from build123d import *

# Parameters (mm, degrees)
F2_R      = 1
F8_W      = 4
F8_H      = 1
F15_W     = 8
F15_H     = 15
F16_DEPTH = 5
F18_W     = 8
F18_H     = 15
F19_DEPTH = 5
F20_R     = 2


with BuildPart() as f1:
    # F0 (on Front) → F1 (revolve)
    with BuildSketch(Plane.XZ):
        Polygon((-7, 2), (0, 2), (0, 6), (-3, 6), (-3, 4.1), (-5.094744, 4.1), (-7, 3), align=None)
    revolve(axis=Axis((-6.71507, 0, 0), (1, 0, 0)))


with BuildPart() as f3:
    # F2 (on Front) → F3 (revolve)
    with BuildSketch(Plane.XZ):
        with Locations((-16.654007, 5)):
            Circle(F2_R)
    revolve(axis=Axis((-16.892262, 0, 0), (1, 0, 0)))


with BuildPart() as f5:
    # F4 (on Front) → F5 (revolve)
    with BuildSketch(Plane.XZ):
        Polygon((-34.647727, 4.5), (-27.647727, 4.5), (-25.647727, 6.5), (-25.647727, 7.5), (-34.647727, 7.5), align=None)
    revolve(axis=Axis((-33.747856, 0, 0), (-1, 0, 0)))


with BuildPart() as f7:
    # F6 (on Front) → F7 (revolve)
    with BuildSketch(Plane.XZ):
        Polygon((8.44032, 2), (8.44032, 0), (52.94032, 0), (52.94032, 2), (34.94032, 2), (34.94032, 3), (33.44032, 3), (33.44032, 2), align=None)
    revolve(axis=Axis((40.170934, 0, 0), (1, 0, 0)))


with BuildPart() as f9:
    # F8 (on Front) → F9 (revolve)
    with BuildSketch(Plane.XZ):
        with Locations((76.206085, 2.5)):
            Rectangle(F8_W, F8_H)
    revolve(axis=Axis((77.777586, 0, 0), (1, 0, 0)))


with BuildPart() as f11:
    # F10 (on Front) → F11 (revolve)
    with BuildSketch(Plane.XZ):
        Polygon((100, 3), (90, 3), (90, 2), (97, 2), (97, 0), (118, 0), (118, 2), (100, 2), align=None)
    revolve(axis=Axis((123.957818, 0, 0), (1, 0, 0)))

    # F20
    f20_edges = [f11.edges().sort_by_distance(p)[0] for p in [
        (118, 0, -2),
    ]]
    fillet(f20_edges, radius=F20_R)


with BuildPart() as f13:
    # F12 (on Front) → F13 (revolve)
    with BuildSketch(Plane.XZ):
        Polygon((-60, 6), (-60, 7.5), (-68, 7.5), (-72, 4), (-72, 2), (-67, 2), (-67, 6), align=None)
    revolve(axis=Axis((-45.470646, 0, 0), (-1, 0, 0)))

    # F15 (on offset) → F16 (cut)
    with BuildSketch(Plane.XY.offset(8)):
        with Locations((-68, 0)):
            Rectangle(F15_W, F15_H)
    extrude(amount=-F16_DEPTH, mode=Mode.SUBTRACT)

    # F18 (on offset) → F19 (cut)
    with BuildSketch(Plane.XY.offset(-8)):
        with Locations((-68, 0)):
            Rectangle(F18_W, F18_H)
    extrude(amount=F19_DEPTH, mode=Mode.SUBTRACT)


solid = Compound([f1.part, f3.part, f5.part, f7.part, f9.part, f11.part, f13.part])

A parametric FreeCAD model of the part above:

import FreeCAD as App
import Part
import Sketcher
Q = App.Units.Quantity


def edges_at(feature, points):
    """Names of the edges that pass closest to the given points."""
    edges = feature.Shape.Edges
    near = lambda p: min(range(len(edges)), key=lambda i: edges[i].distToShape(Part.Vertex(*p))[0])
    return sorted({f"Edge{near(p) + 1}" for p in points})

doc = App.newDocument("Part")
body = doc.addObject("PartDesign::Body", "Body")

# Sketch on XZ plane
sketch1 = doc.addObject("Sketcher::SketchObject", "Sketch")
body.addObject(sketch1)
sketch1.AttachmentSupport = (doc.XZ_Plane, [""])
sketch1.MapMode = "FlatFace"
sketch1.addGeometry(Part.LineSegment(App.Vector(-7, 2, 0), App.Vector(0, 2, 0)), False)
sketch1.addGeometry(Part.LineSegment(App.Vector(0, 2, 0), App.Vector(0, 6, 0)), False)
sketch1.addGeometry(Part.LineSegment(App.Vector(0, 6, 0), App.Vector(-3, 6, 0)), False)
sketch1.addGeometry(Part.LineSegment(App.Vector(-3, 6, 0), App.Vector(-3, 4.1, 0)), False)
sketch1.addGeometry(Part.LineSegment(App.Vector(-3, 4.1, 0), App.Vector(-5.1, 4.1, 0)), False)
sketch1.addGeometry(Part.LineSegment(App.Vector(-5.1, 4.1, 0), App.Vector(-7, 3, 0)), False)
sketch1.addGeometry(Part.LineSegment(App.Vector(-7, 3, 0), App.Vector(-7, 2, 0)), False)
sketch1.addConstraint(Sketcher.Constraint("Coincident", 0, 2, 1, 1))
sketch1.addConstraint(Sketcher.Constraint("Coincident", 1, 2, 2, 1))
sketch1.addConstraint(Sketcher.Constraint("Coincident", 2, 2, 3, 1))
sketch1.addConstraint(Sketcher.Constraint("Coincident", 3, 2, 4, 1))
sketch1.addConstraint(Sketcher.Constraint("Coincident", 4, 2, 5, 1))
sketch1.addConstraint(Sketcher.Constraint("Coincident", 5, 2, 6, 1))
sketch1.addConstraint(Sketcher.Constraint("Coincident", 6, 2, 0, 1))
sketch1.addConstraint(Sketcher.Constraint("Horizontal", 0))
sketch1.addConstraint(Sketcher.Constraint("Vertical", 1))
sketch1.addConstraint(Sketcher.Constraint("Horizontal", 2))
sketch1.addConstraint(Sketcher.Constraint("Vertical", 3))
sketch1.addConstraint(Sketcher.Constraint("Horizontal", 4))
sketch1.addConstraint(Sketcher.Constraint("Vertical", 6))
sketch1.addConstraint(Sketcher.Constraint("PointOnObject", 0, 2, -2))
sketch1.addConstraint(Sketcher.Constraint("DistanceX", 0, 1, 0, 2, Q("7 mm")))
sketch1.addConstraint(Sketcher.Constraint("DistanceX", 2, 2, 2, 1, Q("3 mm")))
sketch1.addConstraint(Sketcher.Constraint("DistanceY", 1, 1, 1, 2, Q("4 mm")))
sketch1.addConstraint(Sketcher.Constraint("DistanceY", 6, 2, 6, 1, Q("1 mm")))
sketch1.addConstraint(Sketcher.Constraint("Angle", 5, Q("-150.000001 deg")))
sketch1.addConstraint(Sketcher.Constraint("DistanceY", 3, 2, 3, 1, Q("1.9 mm")))
sketch1.addConstraint(Sketcher.Constraint("DistanceY", -1, 1, 0, 2, Q("2 mm")))
revolution = doc.addObject("PartDesign::Revolution", "Revolution")
body.addObject(revolution)
revolution.Profile = sketch1
revolution.ReferenceAxis = (sketch1, ["H_Axis"])
revolution.Angle = 360
body2 = doc.addObject("PartDesign::Body", "Body001")

# Sketch on XZ plane
sketch2 = doc.addObject("Sketcher::SketchObject", "Sketch001")
body2.addObject(sketch2)
sketch2.AttachmentSupport = (doc.getObject("XZ_Plane001"), [""])
sketch2.MapMode = "FlatFace"
sketch2.addGeometry(Part.Circle(App.Vector(-16.7, 5, 0), App.Vector(0, 0, 1), 1), False)
sketch2.addConstraint(Sketcher.Constraint("Diameter", 0, Q("2 mm")))
sketch2.addConstraint(Sketcher.Constraint("DistanceY", -1, 1, 0, 3, Q("5 mm")))
sketch2.addConstraint(Sketcher.Constraint("DistanceX", 0, 3, -1, 1, Q("16.654007 mm")))
revolution2 = doc.addObject("PartDesign::Revolution", "Revolution001")
body2.addObject(revolution2)
revolution2.Profile = sketch2
revolution2.ReferenceAxis = (sketch2, ["H_Axis"])
revolution2.Angle = 360
body3 = doc.addObject("PartDesign::Body", "Body002")

# Sketch on XZ plane
sketch3 = doc.addObject("Sketcher::SketchObject", "Sketch002")
body3.addObject(sketch3)
sketch3.AttachmentSupport = (doc.getObject("XZ_Plane002"), [""])
sketch3.MapMode = "FlatFace"
sketch3.addGeometry(Part.LineSegment(App.Vector(-34.6, 4.5, 0), App.Vector(-27.6, 4.5, 0)), False)
sketch3.addGeometry(Part.LineSegment(App.Vector(-27.6, 4.5, 0), App.Vector(-25.6, 6.5, 0)), False)
sketch3.addGeometry(Part.LineSegment(App.Vector(-25.6, 6.5, 0), App.Vector(-25.6, 7.5, 0)), False)
sketch3.addGeometry(Part.LineSegment(App.Vector(-25.6, 7.5, 0), App.Vector(-34.6, 7.5, 0)), False)
sketch3.addGeometry(Part.LineSegment(App.Vector(-34.6, 7.5, 0), App.Vector(-34.6, 4.5, 0)), False)
sketch3.addConstraint(Sketcher.Constraint("Coincident", 0, 2, 1, 1))
sketch3.addConstraint(Sketcher.Constraint("Coincident", 1, 2, 2, 1))
sketch3.addConstraint(Sketcher.Constraint("Coincident", 2, 2, 3, 1))
sketch3.addConstraint(Sketcher.Constraint("Coincident", 3, 2, 4, 1))
sketch3.addConstraint(Sketcher.Constraint("Coincident", 4, 2, 0, 1))
sketch3.addConstraint(Sketcher.Constraint("Horizontal", 0))
sketch3.addConstraint(Sketcher.Constraint("Vertical", 2))
sketch3.addConstraint(Sketcher.Constraint("Horizontal", 3))
sketch3.addConstraint(Sketcher.Constraint("Vertical", 4))
sketch3.addConstraint(Sketcher.Constraint("DistanceX", 0, 1, 0, 2, Q("7 mm")))
sketch3.addConstraint(Sketcher.Constraint("DistanceX", 3, 2, 3, 1, Q("9 mm")))
sketch3.addConstraint(Sketcher.Constraint("DistanceY", 2, 1, 2, 2, Q("1 mm")))
sketch3.addConstraint(Sketcher.Constraint("DistanceY", 4, 2, 4, 1, Q("3 mm")))
sketch3.addConstraint(Sketcher.Constraint("DistanceY", -1, 1, 0, 2, Q("4.5 mm")))
sketch3.addConstraint(Sketcher.Constraint("DistanceX", 0, 2, -1, 1, Q("27.647727 mm")))
revolution3 = doc.addObject("PartDesign::Revolution", "Revolution002")
body3.addObject(revolution3)
revolution3.Profile = sketch3
revolution3.ReferenceAxis = (sketch3, ["H_Axis"])
revolution3.Angle = 360
body4 = doc.addObject("PartDesign::Body", "Body003")

# Sketch on XZ plane
sketch4 = doc.addObject("Sketcher::SketchObject", "Sketch003")
body4.addObject(sketch4)
sketch4.AttachmentSupport = (doc.getObject("XZ_Plane003"), [""])
sketch4.MapMode = "FlatFace"
sketch4.addGeometry(Part.LineSegment(App.Vector(8.4, 2, 0), App.Vector(8.4, 0, 0)), False)
sketch4.addGeometry(Part.LineSegment(App.Vector(8.4, 0, 0), App.Vector(52.9, 0, 0)), False)
sketch4.addGeometry(Part.LineSegment(App.Vector(52.9, 0, 0), App.Vector(52.9, 2, 0)), False)
sketch4.addGeometry(Part.LineSegment(App.Vector(52.9, 2, 0), App.Vector(34.9, 2, 0)), False)
sketch4.addGeometry(Part.LineSegment(App.Vector(34.9, 2, 0), App.Vector(34.9, 3, 0)), False)
sketch4.addGeometry(Part.LineSegment(App.Vector(34.9, 3, 0), App.Vector(33.4, 3, 0)), False)
sketch4.addGeometry(Part.LineSegment(App.Vector(33.4, 3, 0), App.Vector(33.4, 2, 0)), False)
sketch4.addGeometry(Part.LineSegment(App.Vector(33.4, 2, 0), App.Vector(8.4, 2, 0)), False)
sketch4.addConstraint(Sketcher.Constraint("Coincident", 0, 2, 1, 1))
sketch4.addConstraint(Sketcher.Constraint("Coincident", 1, 2, 2, 1))
sketch4.addConstraint(Sketcher.Constraint("Coincident", 2, 2, 3, 1))
sketch4.addConstraint(Sketcher.Constraint("Coincident", 3, 2, 4, 1))
sketch4.addConstraint(Sketcher.Constraint("Coincident", 4, 2, 5, 1))
sketch4.addConstraint(Sketcher.Constraint("Coincident", 5, 2, 6, 1))
sketch4.addConstraint(Sketcher.Constraint("Coincident", 6, 2, 7, 1))
sketch4.addConstraint(Sketcher.Constraint("Coincident", 7, 2, 0, 1))
sketch4.addConstraint(Sketcher.Constraint("Vertical", 0))
sketch4.addConstraint(Sketcher.Constraint("Horizontal", 1))
sketch4.addConstraint(Sketcher.Constraint("Vertical", 2))
sketch4.addConstraint(Sketcher.Constraint("Horizontal", 3))
sketch4.addConstraint(Sketcher.Constraint("Vertical", 4))
sketch4.addConstraint(Sketcher.Constraint("Horizontal", 5))
sketch4.addConstraint(Sketcher.Constraint("Vertical", 6))
sketch4.addConstraint(Sketcher.Constraint("Horizontal", 7))
sketch4.addConstraint(Sketcher.Constraint("PointOnObject", 0, 2, -1))
sketch4.addConstraint(Sketcher.Constraint("Horizontal", 3, 2, 6, 2))
sketch4.addConstraint(Sketcher.Constraint("DistanceX", 3, 2, 3, 1, Q("18 mm")))
sketch4.addConstraint(Sketcher.Constraint("DistanceX", 7, 2, 7, 1, Q("25 mm")))
sketch4.addConstraint(Sketcher.Constraint("DistanceY", 0, 2, 0, 1, Q("2 mm")))
sketch4.addConstraint(Sketcher.Constraint("DistanceY", 4, 1, 4, 2, Q("1 mm")))
sketch4.addConstraint(Sketcher.Constraint("DistanceX", 1, 1, 1, 2, Q("44.5 mm")))
sketch4.addConstraint(Sketcher.Constraint("DistanceX", -1, 1, 0, 2, Q("8.44032 mm")))
revolution4 = doc.addObject("PartDesign::Revolution", "Revolution003")
body4.addObject(revolution4)
revolution4.Profile = sketch4
revolution4.ReferenceAxis = (sketch4, ["H_Axis"])
revolution4.Angle = 360
body5 = doc.addObject("PartDesign::Body", "Body004")

# Sketch on XZ plane
sketch5 = doc.addObject("Sketcher::SketchObject", "Sketch004")
body5.addObject(sketch5)
sketch5.AttachmentSupport = (doc.getObject("XZ_Plane004"), [""])
sketch5.MapMode = "FlatFace"
sketch5.addGeometry(Part.LineSegment(App.Vector(74.2, 3, 0), App.Vector(74.2, 2, 0)), False)
sketch5.addGeometry(Part.LineSegment(App.Vector(74.2, 2, 0), App.Vector(78.2, 2, 0)), False)
sketch5.addGeometry(Part.LineSegment(App.Vector(78.2, 2, 0), App.Vector(78.2, 3, 0)), False)
sketch5.addGeometry(Part.LineSegment(App.Vector(78.2, 3, 0), App.Vector(74.2, 3, 0)), False)
sketch5.addConstraint(Sketcher.Constraint("Coincident", 0, 2, 1, 1))
sketch5.addConstraint(Sketcher.Constraint("Coincident", 1, 2, 2, 1))
sketch5.addConstraint(Sketcher.Constraint("Coincident", 2, 2, 3, 1))
sketch5.addConstraint(Sketcher.Constraint("Coincident", 3, 2, 0, 1))
sketch5.addConstraint(Sketcher.Constraint("Vertical", 0))
sketch5.addConstraint(Sketcher.Constraint("Horizontal", 1))
sketch5.addConstraint(Sketcher.Constraint("Vertical", 2))
sketch5.addConstraint(Sketcher.Constraint("Horizontal", 3))
sketch5.addConstraint(Sketcher.Constraint("DistanceX", 1, 1, 1, 2, Q("4 mm")))
sketch5.addConstraint(Sketcher.Constraint("DistanceY", 0, 2, 0, 1, Q("1 mm")))
sketch5.addConstraint(Sketcher.Constraint("DistanceY", -1, 1, 0, 2, Q("2 mm")))
sketch5.addConstraint(Sketcher.Constraint("DistanceX", -1, 1, 0, 2, Q("74.206085 mm")))
revolution5 = doc.addObject("PartDesign::Revolution", "Revolution004")
body5.addObject(revolution5)
revolution5.Profile = sketch5
revolution5.ReferenceAxis = (sketch5, ["H_Axis"])
revolution5.Angle = 360
body6 = doc.addObject("PartDesign::Body", "Body005")

# Sketch on XZ plane
sketch6 = doc.addObject("Sketcher::SketchObject", "Sketch005")
body6.addObject(sketch6)
sketch6.AttachmentSupport = (doc.getObject("XZ_Plane005"), [""])
sketch6.MapMode = "FlatFace"
sketch6.addGeometry(Part.LineSegment(App.Vector(100, 3, 0), App.Vector(90, 3, 0)), False)
sketch6.addGeometry(Part.LineSegment(App.Vector(90, 3, 0), App.Vector(90, 2, 0)), False)
sketch6.addGeometry(Part.LineSegment(App.Vector(90, 2, 0), App.Vector(97, 2, 0)), False)
sketch6.addGeometry(Part.LineSegment(App.Vector(97, 2, 0), App.Vector(97, 0, 0)), False)
sketch6.addGeometry(Part.LineSegment(App.Vector(97, 0, 0), App.Vector(118, 0, 0)), False)
sketch6.addGeometry(Part.LineSegment(App.Vector(118, 0, 0), App.Vector(118, 2, 0)), False)
sketch6.addGeometry(Part.LineSegment(App.Vector(118, 2, 0), App.Vector(100, 2, 0)), False)
sketch6.addGeometry(Part.LineSegment(App.Vector(100, 2, 0), App.Vector(100, 3, 0)), False)
sketch6.addConstraint(Sketcher.Constraint("Coincident", 0, 2, 1, 1))
sketch6.addConstraint(Sketcher.Constraint("Coincident", 1, 2, 2, 1))
sketch6.addConstraint(Sketcher.Constraint("Coincident", 2, 2, 3, 1))
sketch6.addConstraint(Sketcher.Constraint("Coincident", 3, 2, 4, 1))
sketch6.addConstraint(Sketcher.Constraint("Coincident", 4, 2, 5, 1))
sketch6.addConstraint(Sketcher.Constraint("Coincident", 5, 2, 6, 1))
sketch6.addConstraint(Sketcher.Constraint("Coincident", 6, 2, 7, 1))
sketch6.addConstraint(Sketcher.Constraint("Coincident", 7, 2, 0, 1))
sketch6.addConstraint(Sketcher.Constraint("Horizontal", 0))
sketch6.addConstraint(Sketcher.Constraint("Vertical", 1))
sketch6.addConstraint(Sketcher.Constraint("Horizontal", 2))
sketch6.addConstraint(Sketcher.Constraint("Vertical", 3))
sketch6.addConstraint(Sketcher.Constraint("Horizontal", 4))
sketch6.addConstraint(Sketcher.Constraint("Vertical", 5))
sketch6.addConstraint(Sketcher.Constraint("Horizontal", 6))
sketch6.addConstraint(Sketcher.Constraint("Vertical", 7))
sketch6.addConstraint(Sketcher.Constraint("PointOnObject", 3, 2, -1))
sketch6.addConstraint(Sketcher.Constraint("Horizontal", 2, 2, 5, 2))
sketch6.addConstraint(Sketcher.Constraint("DistanceX", 0, 2, 0, 1, Q("10 mm")))
sketch6.addConstraint(Sketcher.Constraint("DistanceX", 2, 1, 2, 2, Q("7 mm")))
sketch6.addConstraint(Sketcher.Constraint("DistanceX", 4, 1, 4, 2, Q("21 mm")))
sketch6.addConstraint(Sketcher.Constraint("DistanceY", 1, 2, 1, 1, Q("1 mm")))
sketch6.addConstraint(Sketcher.Constraint("DistanceY", 3, 2, 3, 1, Q("2 mm")))
sketch6.addConstraint(Sketcher.Constraint("DistanceX", -1, 1, 0, 2, Q("90 mm")))
revolution6 = doc.addObject("PartDesign::Revolution", "Revolution005")
body6.addObject(revolution6)
revolution6.Profile = sketch6
revolution6.ReferenceAxis = (sketch6, ["H_Axis"])
revolution6.Angle = 360
doc.recompute()

fillet = doc.addObject("PartDesign::Fillet", "Fillet")
body6.addObject(fillet)
fillet.Base = (revolution6, edges_at(revolution6, [(118, 0, -2)]))
fillet.Radius = 2
body7 = doc.addObject("PartDesign::Body", "Body006")

# Sketch on XZ plane
sketch7 = doc.addObject("Sketcher::SketchObject", "Sketch006")
body7.addObject(sketch7)
sketch7.AttachmentSupport = (doc.getObject("XZ_Plane006"), [""])
sketch7.MapMode = "FlatFace"
sketch7.addGeometry(Part.LineSegment(App.Vector(-60, 6, 0), App.Vector(-60, 7.5, 0)), False)
sketch7.addGeometry(Part.LineSegment(App.Vector(-60, 7.5, 0), App.Vector(-68, 7.5, 0)), False)
sketch7.addGeometry(Part.LineSegment(App.Vector(-68, 7.5, 0), App.Vector(-72, 4, 0)), False)
sketch7.addGeometry(Part.LineSegment(App.Vector(-72, 4, 0), App.Vector(-72, 2, 0)), False)
sketch7.addGeometry(Part.LineSegment(App.Vector(-72, 2, 0), App.Vector(-67, 2, 0)), False)
sketch7.addGeometry(Part.LineSegment(App.Vector(-67, 2, 0), App.Vector(-67, 6, 0)), False)
sketch7.addGeometry(Part.LineSegment(App.Vector(-67, 6, 0), App.Vector(-60, 6, 0)), False)
sketch7.addConstraint(Sketcher.Constraint("Coincident", 0, 2, 1, 1))
sketch7.addConstraint(Sketcher.Constraint("Coincident", 1, 2, 2, 1))
sketch7.addConstraint(Sketcher.Constraint("Coincident", 2, 2, 3, 1))
sketch7.addConstraint(Sketcher.Constraint("Coincident", 3, 2, 4, 1))
sketch7.addConstraint(Sketcher.Constraint("Coincident", 4, 2, 5, 1))
sketch7.addConstraint(Sketcher.Constraint("Coincident", 5, 2, 6, 1))
sketch7.addConstraint(Sketcher.Constraint("Coincident", 6, 2, 0, 1))
sketch7.addConstraint(Sketcher.Constraint("Vertical", 0))
sketch7.addConstraint(Sketcher.Constraint("Horizontal", 1))
sketch7.addConstraint(Sketcher.Constraint("Vertical", 3))
sketch7.addConstraint(Sketcher.Constraint("Horizontal", 4))
sketch7.addConstraint(Sketcher.Constraint("Vertical", 5))
sketch7.addConstraint(Sketcher.Constraint("Horizontal", 6))
sketch7.addConstraint(Sketcher.Constraint("DistanceX", 1, 2, 1, 1, Q("8 mm")))
sketch7.addConstraint(Sketcher.Constraint("DistanceX", 4, 1, 4, 2, Q("5 mm")))
sketch7.addConstraint(Sketcher.Constraint("DistanceX", 6, 1, 6, 2, Q("7 mm")))
sketch7.addConstraint(Sketcher.Constraint("DistanceY", 3, 2, 3, 1, Q("2 mm")))
sketch7.addConstraint(Sketcher.Constraint("DistanceY", 5, 1, 5, 2, Q("4 mm")))
sketch7.addConstraint(Sketcher.Constraint("DistanceY", 0, 1, 0, 2, Q("1.5 mm")))
sketch7.addConstraint(Sketcher.Constraint("DistanceX", 0, 2, -1, 1, Q("60 mm")))
sketch7.addConstraint(Sketcher.Constraint("DistanceY", -1, 1, 2, 2, Q("4 mm")))
revolution7 = doc.addObject("PartDesign::Revolution", "Revolution006")
body7.addObject(revolution7)
revolution7.Profile = sketch7
revolution7.ReferenceAxis = (sketch7, ["H_Axis"])
revolution7.Angle = 360

# Sketch on XY plane
sketch8 = doc.addObject("Sketcher::SketchObject", "Sketch007")
body7.addObject(sketch8)
sketch8.AttachmentSupport = (doc.getObject("XY_Plane006"), [""])
sketch8.MapMode = "FlatFace"
sketch8.AttachmentOffset = App.Placement(App.Vector(0, 0, 8), App.Rotation())
sketch8.addGeometry(Part.LineSegment(App.Vector(-72, 8, 0), App.Vector(-72, -8, 0)), False)
sketch8.addGeometry(Part.LineSegment(App.Vector(-72, -8, 0), App.Vector(-64, -8, 0)), False)
sketch8.addGeometry(Part.LineSegment(App.Vector(-64, -8, 0), App.Vector(-64, 8, 0)), False)
sketch8.addGeometry(Part.LineSegment(App.Vector(-64, 8, 0), App.Vector(-72, 8, 0)), False)
sketch8.addConstraint(Sketcher.Constraint("Coincident", 0, 2, 1, 1))
sketch8.addConstraint(Sketcher.Constraint("Coincident", 1, 2, 2, 1))
sketch8.addConstraint(Sketcher.Constraint("Coincident", 2, 2, 3, 1))
sketch8.addConstraint(Sketcher.Constraint("Coincident", 3, 2, 0, 1))
sketch8.addConstraint(Sketcher.Constraint("Vertical", 0))
sketch8.addConstraint(Sketcher.Constraint("Horizontal", 1))
sketch8.addConstraint(Sketcher.Constraint("Vertical", 2))
sketch8.addConstraint(Sketcher.Constraint("Horizontal", 3))
sketch8.addConstraint(Sketcher.Constraint("DistanceX", 1, 1, 1, 2, Q("8 mm")))
sketch8.addConstraint(Sketcher.Constraint("DistanceY", 0, 2, 0, 1, Q("15 mm")))
sketch8.addConstraint(Sketcher.Constraint("DistanceX", 0, 2, -1, 1, Q("72 mm")))
sketch8.addConstraint(Sketcher.Constraint("DistanceY", 0, 2, -1, 1, Q("7.5 mm")))
pocket1 = doc.addObject("PartDesign::Pocket", "Pocket")
body7.addObject(pocket1)
pocket1.Profile = sketch8
pocket1.Length = 5

# Sketch on XY plane
sketch9 = doc.addObject("Sketcher::SketchObject", "Sketch008")
body7.addObject(sketch9)
sketch9.AttachmentSupport = (doc.getObject("XY_Plane006"), [""])
sketch9.MapMode = "FlatFace"
sketch9.AttachmentOffset = App.Placement(App.Vector(0, 0, -8), App.Rotation())
sketch9.addGeometry(Part.LineSegment(App.Vector(-72, 8, 0), App.Vector(-72, -8, 0)), False)
sketch9.addGeometry(Part.LineSegment(App.Vector(-72, -8, 0), App.Vector(-64, -8, 0)), False)
sketch9.addGeometry(Part.LineSegment(App.Vector(-64, -8, 0), App.Vector(-64, 8, 0)), False)
sketch9.addGeometry(Part.LineSegment(App.Vector(-64, 8, 0), App.Vector(-72, 8, 0)), False)
sketch9.addConstraint(Sketcher.Constraint("Coincident", 0, 2, 1, 1))
sketch9.addConstraint(Sketcher.Constraint("Coincident", 1, 2, 2, 1))
sketch9.addConstraint(Sketcher.Constraint("Coincident", 2, 2, 3, 1))
sketch9.addConstraint(Sketcher.Constraint("Coincident", 3, 2, 0, 1))
sketch9.addConstraint(Sketcher.Constraint("Vertical", 0))
sketch9.addConstraint(Sketcher.Constraint("Horizontal", 1))
sketch9.addConstraint(Sketcher.Constraint("Vertical", 2))
sketch9.addConstraint(Sketcher.Constraint("Horizontal", 3))
sketch9.addConstraint(Sketcher.Constraint("DistanceX", 1, 1, 1, 2, Q("8 mm")))
sketch9.addConstraint(Sketcher.Constraint("DistanceY", 0, 2, 0, 1, Q("15 mm")))
sketch9.addConstraint(Sketcher.Constraint("DistanceX", 0, 2, -1, 1, Q("72 mm")))
sketch9.addConstraint(Sketcher.Constraint("DistanceY", 0, 2, -1, 1, Q("7.5 mm")))
pocket2 = doc.addObject("PartDesign::Pocket", "Pocket001")
body7.addObject(pocket2)
pocket2.Profile = sketch9
pocket2.Length = 5
pocket2.Reversed = True

doc.recompute()
